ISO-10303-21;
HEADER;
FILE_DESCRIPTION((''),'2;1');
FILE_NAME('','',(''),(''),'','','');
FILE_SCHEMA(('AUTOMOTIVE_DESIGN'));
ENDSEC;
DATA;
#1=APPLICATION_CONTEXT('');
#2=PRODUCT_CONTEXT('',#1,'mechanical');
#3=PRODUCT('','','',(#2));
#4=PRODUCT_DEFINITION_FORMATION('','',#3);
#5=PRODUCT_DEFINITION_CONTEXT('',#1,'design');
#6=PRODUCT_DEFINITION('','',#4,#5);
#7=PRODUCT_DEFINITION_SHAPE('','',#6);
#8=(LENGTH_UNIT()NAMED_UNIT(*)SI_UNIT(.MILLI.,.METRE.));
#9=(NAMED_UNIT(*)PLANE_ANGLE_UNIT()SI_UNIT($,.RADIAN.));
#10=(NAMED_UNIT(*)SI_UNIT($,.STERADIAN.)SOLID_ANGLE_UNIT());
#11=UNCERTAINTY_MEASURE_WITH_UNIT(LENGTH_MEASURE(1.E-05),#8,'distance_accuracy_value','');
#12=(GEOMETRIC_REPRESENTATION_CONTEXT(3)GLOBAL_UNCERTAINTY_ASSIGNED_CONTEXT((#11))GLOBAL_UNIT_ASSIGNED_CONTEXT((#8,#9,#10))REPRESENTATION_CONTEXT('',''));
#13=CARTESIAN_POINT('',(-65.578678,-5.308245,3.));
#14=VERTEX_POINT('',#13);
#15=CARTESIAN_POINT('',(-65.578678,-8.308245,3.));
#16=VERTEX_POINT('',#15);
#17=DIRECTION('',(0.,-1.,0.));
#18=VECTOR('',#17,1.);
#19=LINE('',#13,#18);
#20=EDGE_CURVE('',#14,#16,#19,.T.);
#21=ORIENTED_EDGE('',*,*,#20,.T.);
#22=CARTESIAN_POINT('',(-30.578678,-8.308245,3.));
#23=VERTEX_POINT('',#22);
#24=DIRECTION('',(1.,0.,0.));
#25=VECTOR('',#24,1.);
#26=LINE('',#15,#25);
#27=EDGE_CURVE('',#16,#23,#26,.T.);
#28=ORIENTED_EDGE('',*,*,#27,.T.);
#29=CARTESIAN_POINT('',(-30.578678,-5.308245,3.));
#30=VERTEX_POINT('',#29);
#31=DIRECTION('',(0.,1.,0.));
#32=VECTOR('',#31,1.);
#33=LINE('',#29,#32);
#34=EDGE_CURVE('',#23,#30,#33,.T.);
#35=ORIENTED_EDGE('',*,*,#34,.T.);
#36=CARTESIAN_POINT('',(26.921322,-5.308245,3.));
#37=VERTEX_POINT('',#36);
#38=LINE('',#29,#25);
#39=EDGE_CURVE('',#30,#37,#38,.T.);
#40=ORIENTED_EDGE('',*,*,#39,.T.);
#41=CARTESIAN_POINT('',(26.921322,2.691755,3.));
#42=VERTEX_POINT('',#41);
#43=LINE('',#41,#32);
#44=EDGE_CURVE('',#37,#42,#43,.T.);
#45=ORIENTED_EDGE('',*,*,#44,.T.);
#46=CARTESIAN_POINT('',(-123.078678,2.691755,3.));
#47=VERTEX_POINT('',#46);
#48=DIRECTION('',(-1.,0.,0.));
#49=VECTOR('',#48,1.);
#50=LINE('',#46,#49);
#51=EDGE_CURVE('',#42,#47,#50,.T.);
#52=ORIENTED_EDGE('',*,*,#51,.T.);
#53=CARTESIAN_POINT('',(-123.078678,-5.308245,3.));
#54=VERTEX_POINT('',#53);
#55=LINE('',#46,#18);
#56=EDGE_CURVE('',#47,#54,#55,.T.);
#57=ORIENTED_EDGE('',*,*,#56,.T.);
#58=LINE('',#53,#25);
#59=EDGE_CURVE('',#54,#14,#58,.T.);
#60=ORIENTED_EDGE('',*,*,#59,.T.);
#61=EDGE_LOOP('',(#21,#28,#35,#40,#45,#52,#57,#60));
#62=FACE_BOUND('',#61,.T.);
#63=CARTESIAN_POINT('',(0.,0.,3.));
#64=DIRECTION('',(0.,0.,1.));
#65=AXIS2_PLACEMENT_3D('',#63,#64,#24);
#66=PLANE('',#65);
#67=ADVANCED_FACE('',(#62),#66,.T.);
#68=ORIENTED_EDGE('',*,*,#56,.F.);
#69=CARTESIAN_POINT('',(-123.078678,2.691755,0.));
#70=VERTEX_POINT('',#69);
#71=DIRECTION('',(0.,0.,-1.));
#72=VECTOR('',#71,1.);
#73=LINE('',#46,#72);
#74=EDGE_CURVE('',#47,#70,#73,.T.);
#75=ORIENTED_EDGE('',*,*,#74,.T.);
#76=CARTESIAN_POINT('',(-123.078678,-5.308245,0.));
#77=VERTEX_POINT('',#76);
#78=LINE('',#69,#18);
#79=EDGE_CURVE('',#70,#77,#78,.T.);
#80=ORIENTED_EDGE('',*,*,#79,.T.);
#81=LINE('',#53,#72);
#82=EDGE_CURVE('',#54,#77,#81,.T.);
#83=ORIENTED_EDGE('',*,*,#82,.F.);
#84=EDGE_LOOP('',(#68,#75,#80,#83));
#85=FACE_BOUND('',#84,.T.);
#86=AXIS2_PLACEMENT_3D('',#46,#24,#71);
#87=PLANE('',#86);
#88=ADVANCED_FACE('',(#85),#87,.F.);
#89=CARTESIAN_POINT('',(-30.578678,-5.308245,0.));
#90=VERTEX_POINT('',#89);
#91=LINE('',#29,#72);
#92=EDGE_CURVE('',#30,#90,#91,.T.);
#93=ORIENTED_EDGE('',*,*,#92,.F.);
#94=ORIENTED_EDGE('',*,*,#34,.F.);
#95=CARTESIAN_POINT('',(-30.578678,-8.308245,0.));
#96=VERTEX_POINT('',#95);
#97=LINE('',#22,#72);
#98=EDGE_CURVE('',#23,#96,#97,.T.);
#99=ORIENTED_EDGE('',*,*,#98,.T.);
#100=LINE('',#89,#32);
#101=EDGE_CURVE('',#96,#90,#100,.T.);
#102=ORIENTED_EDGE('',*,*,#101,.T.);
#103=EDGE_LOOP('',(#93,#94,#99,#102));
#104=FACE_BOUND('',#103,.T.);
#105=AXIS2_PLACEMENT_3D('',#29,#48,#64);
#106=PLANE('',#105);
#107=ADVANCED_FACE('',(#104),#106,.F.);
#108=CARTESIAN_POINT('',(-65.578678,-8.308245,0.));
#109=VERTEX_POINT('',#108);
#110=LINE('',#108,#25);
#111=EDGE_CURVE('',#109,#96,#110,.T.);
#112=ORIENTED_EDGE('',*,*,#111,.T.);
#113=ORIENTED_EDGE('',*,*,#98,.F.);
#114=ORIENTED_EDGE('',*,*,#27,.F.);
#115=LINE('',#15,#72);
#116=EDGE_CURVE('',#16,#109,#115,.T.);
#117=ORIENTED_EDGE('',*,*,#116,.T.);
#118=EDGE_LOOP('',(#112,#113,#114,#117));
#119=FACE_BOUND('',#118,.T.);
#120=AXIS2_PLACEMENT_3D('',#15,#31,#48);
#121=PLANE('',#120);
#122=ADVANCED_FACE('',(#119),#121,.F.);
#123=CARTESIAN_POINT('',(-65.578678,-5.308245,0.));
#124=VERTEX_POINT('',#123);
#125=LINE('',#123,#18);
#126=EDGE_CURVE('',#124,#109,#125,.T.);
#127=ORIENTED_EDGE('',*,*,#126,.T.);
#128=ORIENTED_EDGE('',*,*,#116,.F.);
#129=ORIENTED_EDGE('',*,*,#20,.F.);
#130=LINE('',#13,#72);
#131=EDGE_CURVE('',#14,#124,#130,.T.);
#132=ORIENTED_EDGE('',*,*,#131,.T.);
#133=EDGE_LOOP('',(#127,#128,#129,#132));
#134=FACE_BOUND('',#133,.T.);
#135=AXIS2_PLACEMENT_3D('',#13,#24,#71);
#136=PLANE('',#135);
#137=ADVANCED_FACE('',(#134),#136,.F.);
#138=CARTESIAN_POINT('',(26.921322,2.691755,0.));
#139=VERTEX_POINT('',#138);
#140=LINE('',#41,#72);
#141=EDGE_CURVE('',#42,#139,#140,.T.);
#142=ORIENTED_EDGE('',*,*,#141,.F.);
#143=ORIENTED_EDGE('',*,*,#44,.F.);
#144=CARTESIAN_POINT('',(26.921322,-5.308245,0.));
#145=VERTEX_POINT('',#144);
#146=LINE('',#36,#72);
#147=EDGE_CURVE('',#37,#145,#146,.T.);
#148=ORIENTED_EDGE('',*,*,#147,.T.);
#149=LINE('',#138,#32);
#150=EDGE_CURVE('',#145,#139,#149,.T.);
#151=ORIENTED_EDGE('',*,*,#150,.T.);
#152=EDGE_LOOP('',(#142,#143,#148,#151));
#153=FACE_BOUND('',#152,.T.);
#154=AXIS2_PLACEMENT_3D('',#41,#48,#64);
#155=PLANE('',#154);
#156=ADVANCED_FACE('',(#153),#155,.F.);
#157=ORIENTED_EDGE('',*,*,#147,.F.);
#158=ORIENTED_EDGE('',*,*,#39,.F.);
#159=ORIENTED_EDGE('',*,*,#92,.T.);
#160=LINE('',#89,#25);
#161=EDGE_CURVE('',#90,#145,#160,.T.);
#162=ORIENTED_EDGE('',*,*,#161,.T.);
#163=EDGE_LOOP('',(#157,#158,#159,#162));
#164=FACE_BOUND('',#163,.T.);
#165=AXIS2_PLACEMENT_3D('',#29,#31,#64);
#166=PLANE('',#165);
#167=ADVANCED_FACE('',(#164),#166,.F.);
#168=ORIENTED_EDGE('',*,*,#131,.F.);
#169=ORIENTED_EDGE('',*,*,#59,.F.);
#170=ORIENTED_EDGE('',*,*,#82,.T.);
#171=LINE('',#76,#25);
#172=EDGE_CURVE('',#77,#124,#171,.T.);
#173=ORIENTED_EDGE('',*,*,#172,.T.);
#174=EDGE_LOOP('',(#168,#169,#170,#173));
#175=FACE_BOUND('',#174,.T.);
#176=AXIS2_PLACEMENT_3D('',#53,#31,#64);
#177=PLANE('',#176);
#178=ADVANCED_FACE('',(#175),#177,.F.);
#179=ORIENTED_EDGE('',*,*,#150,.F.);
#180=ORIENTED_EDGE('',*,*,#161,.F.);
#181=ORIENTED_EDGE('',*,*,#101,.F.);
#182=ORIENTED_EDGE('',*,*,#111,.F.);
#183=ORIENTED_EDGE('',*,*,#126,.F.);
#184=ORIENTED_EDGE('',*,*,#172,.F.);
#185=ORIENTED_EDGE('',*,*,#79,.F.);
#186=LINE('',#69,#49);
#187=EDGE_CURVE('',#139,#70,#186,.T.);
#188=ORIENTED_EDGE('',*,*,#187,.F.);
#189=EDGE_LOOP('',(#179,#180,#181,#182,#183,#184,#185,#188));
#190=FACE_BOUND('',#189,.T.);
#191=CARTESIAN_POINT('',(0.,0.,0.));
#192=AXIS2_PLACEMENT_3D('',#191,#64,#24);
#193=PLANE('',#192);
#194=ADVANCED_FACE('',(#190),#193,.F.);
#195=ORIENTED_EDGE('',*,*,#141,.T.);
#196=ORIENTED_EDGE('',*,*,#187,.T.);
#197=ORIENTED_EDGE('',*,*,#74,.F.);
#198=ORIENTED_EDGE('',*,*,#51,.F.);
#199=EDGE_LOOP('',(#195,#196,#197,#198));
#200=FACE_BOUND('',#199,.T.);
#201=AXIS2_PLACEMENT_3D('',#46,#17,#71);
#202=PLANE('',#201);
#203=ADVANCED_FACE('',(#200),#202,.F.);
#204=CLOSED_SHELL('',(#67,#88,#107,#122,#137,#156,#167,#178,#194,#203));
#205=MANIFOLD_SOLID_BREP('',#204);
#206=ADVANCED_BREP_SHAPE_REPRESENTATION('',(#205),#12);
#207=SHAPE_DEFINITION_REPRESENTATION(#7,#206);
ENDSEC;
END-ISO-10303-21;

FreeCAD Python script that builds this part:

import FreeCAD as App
import Part
import Sketcher

doc = App.newDocument("Part")
params = doc.addObject("Spreadsheet::Sheet", "Params")
for row, (alias, value) in enumerate([
    ("sketch1_width", "150 mm"),
    ("sketch1_width2", "35 mm"),
    ("sketch1_height", "8 mm"),
    ("sketch1_height2", "3 mm"),
    ("pad1_length", "3 mm"),
], start=1):
    params.set(f"A{row}", alias)
    params.set(f"B{row}", "=" + value)
    params.setAlias(f"B{row}", alias)

body = doc.addObject("PartDesign::Body", "Body")

# Sketch on XY plane
sketch1 = body.newObject("Sketcher::SketchObject", "Sketch")
sketch1.AttachmentSupport = (doc.getObject("XY_Plane"), [""])
sketch1.MapMode = "FlatFace"
sketch1.addGeometry(Part.LineSegment(App.Vector(-30.6, -5.3, 0), App.Vector(26.9, -5.3, 0)), False)
sketch1.addGeometry(Part.LineSegment(App.Vector(26.9, -5.3, 0), App.Vector(26.9, 2.7, 0)), False)
sketch1.addGeometry(Part.LineSegment(App.Vector(26.9, 2.7, 0), App.Vector(-123.1, 2.7, 0)), False)
sketch1.addGeometry(Part.LineSegment(App.Vector(-123.1, 2.7, 0), App.Vector(-123.1, -5.3, 0)), False)
sketch1.addGeometry(Part.LineSegment(App.Vector(-123.1, -5.3, 0), App.Vector(-65.6, -5.3, 0)), False)
sketch1.addGeometry(Part.LineSegment(App.Vector(-65.6, -5.3, 0), App.Vector(-65.6, -8.3, 0)), False)
sketch1.addGeometry(Part.LineSegment(App.Vector(-65.6, -8.3, 0), App.Vector(-30.6, -8.3, 0)), False)
sketch1.addGeometry(Part.LineSegment(App.Vector(-30.6, -8.3, 0), App.Vector(-30.6, -5.3, 0)), False)
sketch1.addConstraint(Sketcher.Constraint("Coincident", 0, 2, 1, 1))
sketch1.addConstraint(Sketcher.Constraint("Coincident", 1, 2, 2, 1))
sketch1.addConstraint(Sketcher.Constraint("Coincident", 2, 2, 3, 1))
sketch1.addConstraint(Sketcher.Constraint("Coincident", 3, 2, 4, 1))
sketch1.addConstraint(Sketcher.Constraint("Coincident", 4, 2, 5, 1))
sketch1.addConstraint(Sketcher.Constraint("Coincident", 5, 2, 6, 1))
sketch1.addConstraint(Sketcher.Constraint("Coincident", 6, 2, 7, 1))
sketch1.addConstraint(Sketcher.Constraint("Coincident", 7, 2, 0, 1))
sketch1.addConstraint(Sketcher.Constraint("Horizontal", 0))
sketch1.addConstraint(Sketcher.Constraint("Vertical", 1))
sketch1.addConstraint(Sketcher.Constraint("Horizontal", 2))
sketch1.addConstraint(Sketcher.Constraint("Vertical", 3))
sketch1.addConstraint(Sketcher.Constraint("Horizontal", 4))
sketch1.addConstraint(Sketcher.Constraint("Vertical", 5))
sketch1.addConstraint(Sketcher.Constraint("Horizontal", 6))
sketch1.addConstraint(Sketcher.Constraint("Vertical", 7))
sketch1.addConstraint(Sketcher.Constraint("Horizontal", 0, 2, 3, 2))
sketch1.addConstraint(Sketcher.Constraint("Equal", 0, 4))
sketch1.addConstraint(Sketcher.Constraint("DistanceX", 2, 2, 2, 1, 150.0))
sketch1.addConstraint(Sketcher.Constraint("DistanceX", 6, 1, 6, 2, 35.0))
sketch1.addConstraint(Sketcher.Constraint("DistanceY", 1, 1, 1, 2, 8.0))
sketch1.addConstraint(Sketcher.Constraint("DistanceY", 5, 2, 5, 1, 3.0))
sketch1.addConstraint(Sketcher.Constraint("DistanceX", -1, 1, 0, 2, 26.921322))
sketch1.addConstraint(Sketcher.Constraint("DistanceY", 0, 2, -1, 1, 5.308245))
sketch1.setExpression("Constraints[18]", "Params.sketch1_width")
sketch1.setExpression("Constraints[19]", "Params.sketch1_width2")
sketch1.setExpression("Constraints[20]", "Params.sketch1_height")
sketch1.setExpression("Constraints[21]", "Params.sketch1_height2")
pad1 = body.newObject("PartDesign::Pad", "Pad")
pad1.Profile = sketch1
pad1.setExpression("Length", "Params.pad1_length")

doc.recompute()
